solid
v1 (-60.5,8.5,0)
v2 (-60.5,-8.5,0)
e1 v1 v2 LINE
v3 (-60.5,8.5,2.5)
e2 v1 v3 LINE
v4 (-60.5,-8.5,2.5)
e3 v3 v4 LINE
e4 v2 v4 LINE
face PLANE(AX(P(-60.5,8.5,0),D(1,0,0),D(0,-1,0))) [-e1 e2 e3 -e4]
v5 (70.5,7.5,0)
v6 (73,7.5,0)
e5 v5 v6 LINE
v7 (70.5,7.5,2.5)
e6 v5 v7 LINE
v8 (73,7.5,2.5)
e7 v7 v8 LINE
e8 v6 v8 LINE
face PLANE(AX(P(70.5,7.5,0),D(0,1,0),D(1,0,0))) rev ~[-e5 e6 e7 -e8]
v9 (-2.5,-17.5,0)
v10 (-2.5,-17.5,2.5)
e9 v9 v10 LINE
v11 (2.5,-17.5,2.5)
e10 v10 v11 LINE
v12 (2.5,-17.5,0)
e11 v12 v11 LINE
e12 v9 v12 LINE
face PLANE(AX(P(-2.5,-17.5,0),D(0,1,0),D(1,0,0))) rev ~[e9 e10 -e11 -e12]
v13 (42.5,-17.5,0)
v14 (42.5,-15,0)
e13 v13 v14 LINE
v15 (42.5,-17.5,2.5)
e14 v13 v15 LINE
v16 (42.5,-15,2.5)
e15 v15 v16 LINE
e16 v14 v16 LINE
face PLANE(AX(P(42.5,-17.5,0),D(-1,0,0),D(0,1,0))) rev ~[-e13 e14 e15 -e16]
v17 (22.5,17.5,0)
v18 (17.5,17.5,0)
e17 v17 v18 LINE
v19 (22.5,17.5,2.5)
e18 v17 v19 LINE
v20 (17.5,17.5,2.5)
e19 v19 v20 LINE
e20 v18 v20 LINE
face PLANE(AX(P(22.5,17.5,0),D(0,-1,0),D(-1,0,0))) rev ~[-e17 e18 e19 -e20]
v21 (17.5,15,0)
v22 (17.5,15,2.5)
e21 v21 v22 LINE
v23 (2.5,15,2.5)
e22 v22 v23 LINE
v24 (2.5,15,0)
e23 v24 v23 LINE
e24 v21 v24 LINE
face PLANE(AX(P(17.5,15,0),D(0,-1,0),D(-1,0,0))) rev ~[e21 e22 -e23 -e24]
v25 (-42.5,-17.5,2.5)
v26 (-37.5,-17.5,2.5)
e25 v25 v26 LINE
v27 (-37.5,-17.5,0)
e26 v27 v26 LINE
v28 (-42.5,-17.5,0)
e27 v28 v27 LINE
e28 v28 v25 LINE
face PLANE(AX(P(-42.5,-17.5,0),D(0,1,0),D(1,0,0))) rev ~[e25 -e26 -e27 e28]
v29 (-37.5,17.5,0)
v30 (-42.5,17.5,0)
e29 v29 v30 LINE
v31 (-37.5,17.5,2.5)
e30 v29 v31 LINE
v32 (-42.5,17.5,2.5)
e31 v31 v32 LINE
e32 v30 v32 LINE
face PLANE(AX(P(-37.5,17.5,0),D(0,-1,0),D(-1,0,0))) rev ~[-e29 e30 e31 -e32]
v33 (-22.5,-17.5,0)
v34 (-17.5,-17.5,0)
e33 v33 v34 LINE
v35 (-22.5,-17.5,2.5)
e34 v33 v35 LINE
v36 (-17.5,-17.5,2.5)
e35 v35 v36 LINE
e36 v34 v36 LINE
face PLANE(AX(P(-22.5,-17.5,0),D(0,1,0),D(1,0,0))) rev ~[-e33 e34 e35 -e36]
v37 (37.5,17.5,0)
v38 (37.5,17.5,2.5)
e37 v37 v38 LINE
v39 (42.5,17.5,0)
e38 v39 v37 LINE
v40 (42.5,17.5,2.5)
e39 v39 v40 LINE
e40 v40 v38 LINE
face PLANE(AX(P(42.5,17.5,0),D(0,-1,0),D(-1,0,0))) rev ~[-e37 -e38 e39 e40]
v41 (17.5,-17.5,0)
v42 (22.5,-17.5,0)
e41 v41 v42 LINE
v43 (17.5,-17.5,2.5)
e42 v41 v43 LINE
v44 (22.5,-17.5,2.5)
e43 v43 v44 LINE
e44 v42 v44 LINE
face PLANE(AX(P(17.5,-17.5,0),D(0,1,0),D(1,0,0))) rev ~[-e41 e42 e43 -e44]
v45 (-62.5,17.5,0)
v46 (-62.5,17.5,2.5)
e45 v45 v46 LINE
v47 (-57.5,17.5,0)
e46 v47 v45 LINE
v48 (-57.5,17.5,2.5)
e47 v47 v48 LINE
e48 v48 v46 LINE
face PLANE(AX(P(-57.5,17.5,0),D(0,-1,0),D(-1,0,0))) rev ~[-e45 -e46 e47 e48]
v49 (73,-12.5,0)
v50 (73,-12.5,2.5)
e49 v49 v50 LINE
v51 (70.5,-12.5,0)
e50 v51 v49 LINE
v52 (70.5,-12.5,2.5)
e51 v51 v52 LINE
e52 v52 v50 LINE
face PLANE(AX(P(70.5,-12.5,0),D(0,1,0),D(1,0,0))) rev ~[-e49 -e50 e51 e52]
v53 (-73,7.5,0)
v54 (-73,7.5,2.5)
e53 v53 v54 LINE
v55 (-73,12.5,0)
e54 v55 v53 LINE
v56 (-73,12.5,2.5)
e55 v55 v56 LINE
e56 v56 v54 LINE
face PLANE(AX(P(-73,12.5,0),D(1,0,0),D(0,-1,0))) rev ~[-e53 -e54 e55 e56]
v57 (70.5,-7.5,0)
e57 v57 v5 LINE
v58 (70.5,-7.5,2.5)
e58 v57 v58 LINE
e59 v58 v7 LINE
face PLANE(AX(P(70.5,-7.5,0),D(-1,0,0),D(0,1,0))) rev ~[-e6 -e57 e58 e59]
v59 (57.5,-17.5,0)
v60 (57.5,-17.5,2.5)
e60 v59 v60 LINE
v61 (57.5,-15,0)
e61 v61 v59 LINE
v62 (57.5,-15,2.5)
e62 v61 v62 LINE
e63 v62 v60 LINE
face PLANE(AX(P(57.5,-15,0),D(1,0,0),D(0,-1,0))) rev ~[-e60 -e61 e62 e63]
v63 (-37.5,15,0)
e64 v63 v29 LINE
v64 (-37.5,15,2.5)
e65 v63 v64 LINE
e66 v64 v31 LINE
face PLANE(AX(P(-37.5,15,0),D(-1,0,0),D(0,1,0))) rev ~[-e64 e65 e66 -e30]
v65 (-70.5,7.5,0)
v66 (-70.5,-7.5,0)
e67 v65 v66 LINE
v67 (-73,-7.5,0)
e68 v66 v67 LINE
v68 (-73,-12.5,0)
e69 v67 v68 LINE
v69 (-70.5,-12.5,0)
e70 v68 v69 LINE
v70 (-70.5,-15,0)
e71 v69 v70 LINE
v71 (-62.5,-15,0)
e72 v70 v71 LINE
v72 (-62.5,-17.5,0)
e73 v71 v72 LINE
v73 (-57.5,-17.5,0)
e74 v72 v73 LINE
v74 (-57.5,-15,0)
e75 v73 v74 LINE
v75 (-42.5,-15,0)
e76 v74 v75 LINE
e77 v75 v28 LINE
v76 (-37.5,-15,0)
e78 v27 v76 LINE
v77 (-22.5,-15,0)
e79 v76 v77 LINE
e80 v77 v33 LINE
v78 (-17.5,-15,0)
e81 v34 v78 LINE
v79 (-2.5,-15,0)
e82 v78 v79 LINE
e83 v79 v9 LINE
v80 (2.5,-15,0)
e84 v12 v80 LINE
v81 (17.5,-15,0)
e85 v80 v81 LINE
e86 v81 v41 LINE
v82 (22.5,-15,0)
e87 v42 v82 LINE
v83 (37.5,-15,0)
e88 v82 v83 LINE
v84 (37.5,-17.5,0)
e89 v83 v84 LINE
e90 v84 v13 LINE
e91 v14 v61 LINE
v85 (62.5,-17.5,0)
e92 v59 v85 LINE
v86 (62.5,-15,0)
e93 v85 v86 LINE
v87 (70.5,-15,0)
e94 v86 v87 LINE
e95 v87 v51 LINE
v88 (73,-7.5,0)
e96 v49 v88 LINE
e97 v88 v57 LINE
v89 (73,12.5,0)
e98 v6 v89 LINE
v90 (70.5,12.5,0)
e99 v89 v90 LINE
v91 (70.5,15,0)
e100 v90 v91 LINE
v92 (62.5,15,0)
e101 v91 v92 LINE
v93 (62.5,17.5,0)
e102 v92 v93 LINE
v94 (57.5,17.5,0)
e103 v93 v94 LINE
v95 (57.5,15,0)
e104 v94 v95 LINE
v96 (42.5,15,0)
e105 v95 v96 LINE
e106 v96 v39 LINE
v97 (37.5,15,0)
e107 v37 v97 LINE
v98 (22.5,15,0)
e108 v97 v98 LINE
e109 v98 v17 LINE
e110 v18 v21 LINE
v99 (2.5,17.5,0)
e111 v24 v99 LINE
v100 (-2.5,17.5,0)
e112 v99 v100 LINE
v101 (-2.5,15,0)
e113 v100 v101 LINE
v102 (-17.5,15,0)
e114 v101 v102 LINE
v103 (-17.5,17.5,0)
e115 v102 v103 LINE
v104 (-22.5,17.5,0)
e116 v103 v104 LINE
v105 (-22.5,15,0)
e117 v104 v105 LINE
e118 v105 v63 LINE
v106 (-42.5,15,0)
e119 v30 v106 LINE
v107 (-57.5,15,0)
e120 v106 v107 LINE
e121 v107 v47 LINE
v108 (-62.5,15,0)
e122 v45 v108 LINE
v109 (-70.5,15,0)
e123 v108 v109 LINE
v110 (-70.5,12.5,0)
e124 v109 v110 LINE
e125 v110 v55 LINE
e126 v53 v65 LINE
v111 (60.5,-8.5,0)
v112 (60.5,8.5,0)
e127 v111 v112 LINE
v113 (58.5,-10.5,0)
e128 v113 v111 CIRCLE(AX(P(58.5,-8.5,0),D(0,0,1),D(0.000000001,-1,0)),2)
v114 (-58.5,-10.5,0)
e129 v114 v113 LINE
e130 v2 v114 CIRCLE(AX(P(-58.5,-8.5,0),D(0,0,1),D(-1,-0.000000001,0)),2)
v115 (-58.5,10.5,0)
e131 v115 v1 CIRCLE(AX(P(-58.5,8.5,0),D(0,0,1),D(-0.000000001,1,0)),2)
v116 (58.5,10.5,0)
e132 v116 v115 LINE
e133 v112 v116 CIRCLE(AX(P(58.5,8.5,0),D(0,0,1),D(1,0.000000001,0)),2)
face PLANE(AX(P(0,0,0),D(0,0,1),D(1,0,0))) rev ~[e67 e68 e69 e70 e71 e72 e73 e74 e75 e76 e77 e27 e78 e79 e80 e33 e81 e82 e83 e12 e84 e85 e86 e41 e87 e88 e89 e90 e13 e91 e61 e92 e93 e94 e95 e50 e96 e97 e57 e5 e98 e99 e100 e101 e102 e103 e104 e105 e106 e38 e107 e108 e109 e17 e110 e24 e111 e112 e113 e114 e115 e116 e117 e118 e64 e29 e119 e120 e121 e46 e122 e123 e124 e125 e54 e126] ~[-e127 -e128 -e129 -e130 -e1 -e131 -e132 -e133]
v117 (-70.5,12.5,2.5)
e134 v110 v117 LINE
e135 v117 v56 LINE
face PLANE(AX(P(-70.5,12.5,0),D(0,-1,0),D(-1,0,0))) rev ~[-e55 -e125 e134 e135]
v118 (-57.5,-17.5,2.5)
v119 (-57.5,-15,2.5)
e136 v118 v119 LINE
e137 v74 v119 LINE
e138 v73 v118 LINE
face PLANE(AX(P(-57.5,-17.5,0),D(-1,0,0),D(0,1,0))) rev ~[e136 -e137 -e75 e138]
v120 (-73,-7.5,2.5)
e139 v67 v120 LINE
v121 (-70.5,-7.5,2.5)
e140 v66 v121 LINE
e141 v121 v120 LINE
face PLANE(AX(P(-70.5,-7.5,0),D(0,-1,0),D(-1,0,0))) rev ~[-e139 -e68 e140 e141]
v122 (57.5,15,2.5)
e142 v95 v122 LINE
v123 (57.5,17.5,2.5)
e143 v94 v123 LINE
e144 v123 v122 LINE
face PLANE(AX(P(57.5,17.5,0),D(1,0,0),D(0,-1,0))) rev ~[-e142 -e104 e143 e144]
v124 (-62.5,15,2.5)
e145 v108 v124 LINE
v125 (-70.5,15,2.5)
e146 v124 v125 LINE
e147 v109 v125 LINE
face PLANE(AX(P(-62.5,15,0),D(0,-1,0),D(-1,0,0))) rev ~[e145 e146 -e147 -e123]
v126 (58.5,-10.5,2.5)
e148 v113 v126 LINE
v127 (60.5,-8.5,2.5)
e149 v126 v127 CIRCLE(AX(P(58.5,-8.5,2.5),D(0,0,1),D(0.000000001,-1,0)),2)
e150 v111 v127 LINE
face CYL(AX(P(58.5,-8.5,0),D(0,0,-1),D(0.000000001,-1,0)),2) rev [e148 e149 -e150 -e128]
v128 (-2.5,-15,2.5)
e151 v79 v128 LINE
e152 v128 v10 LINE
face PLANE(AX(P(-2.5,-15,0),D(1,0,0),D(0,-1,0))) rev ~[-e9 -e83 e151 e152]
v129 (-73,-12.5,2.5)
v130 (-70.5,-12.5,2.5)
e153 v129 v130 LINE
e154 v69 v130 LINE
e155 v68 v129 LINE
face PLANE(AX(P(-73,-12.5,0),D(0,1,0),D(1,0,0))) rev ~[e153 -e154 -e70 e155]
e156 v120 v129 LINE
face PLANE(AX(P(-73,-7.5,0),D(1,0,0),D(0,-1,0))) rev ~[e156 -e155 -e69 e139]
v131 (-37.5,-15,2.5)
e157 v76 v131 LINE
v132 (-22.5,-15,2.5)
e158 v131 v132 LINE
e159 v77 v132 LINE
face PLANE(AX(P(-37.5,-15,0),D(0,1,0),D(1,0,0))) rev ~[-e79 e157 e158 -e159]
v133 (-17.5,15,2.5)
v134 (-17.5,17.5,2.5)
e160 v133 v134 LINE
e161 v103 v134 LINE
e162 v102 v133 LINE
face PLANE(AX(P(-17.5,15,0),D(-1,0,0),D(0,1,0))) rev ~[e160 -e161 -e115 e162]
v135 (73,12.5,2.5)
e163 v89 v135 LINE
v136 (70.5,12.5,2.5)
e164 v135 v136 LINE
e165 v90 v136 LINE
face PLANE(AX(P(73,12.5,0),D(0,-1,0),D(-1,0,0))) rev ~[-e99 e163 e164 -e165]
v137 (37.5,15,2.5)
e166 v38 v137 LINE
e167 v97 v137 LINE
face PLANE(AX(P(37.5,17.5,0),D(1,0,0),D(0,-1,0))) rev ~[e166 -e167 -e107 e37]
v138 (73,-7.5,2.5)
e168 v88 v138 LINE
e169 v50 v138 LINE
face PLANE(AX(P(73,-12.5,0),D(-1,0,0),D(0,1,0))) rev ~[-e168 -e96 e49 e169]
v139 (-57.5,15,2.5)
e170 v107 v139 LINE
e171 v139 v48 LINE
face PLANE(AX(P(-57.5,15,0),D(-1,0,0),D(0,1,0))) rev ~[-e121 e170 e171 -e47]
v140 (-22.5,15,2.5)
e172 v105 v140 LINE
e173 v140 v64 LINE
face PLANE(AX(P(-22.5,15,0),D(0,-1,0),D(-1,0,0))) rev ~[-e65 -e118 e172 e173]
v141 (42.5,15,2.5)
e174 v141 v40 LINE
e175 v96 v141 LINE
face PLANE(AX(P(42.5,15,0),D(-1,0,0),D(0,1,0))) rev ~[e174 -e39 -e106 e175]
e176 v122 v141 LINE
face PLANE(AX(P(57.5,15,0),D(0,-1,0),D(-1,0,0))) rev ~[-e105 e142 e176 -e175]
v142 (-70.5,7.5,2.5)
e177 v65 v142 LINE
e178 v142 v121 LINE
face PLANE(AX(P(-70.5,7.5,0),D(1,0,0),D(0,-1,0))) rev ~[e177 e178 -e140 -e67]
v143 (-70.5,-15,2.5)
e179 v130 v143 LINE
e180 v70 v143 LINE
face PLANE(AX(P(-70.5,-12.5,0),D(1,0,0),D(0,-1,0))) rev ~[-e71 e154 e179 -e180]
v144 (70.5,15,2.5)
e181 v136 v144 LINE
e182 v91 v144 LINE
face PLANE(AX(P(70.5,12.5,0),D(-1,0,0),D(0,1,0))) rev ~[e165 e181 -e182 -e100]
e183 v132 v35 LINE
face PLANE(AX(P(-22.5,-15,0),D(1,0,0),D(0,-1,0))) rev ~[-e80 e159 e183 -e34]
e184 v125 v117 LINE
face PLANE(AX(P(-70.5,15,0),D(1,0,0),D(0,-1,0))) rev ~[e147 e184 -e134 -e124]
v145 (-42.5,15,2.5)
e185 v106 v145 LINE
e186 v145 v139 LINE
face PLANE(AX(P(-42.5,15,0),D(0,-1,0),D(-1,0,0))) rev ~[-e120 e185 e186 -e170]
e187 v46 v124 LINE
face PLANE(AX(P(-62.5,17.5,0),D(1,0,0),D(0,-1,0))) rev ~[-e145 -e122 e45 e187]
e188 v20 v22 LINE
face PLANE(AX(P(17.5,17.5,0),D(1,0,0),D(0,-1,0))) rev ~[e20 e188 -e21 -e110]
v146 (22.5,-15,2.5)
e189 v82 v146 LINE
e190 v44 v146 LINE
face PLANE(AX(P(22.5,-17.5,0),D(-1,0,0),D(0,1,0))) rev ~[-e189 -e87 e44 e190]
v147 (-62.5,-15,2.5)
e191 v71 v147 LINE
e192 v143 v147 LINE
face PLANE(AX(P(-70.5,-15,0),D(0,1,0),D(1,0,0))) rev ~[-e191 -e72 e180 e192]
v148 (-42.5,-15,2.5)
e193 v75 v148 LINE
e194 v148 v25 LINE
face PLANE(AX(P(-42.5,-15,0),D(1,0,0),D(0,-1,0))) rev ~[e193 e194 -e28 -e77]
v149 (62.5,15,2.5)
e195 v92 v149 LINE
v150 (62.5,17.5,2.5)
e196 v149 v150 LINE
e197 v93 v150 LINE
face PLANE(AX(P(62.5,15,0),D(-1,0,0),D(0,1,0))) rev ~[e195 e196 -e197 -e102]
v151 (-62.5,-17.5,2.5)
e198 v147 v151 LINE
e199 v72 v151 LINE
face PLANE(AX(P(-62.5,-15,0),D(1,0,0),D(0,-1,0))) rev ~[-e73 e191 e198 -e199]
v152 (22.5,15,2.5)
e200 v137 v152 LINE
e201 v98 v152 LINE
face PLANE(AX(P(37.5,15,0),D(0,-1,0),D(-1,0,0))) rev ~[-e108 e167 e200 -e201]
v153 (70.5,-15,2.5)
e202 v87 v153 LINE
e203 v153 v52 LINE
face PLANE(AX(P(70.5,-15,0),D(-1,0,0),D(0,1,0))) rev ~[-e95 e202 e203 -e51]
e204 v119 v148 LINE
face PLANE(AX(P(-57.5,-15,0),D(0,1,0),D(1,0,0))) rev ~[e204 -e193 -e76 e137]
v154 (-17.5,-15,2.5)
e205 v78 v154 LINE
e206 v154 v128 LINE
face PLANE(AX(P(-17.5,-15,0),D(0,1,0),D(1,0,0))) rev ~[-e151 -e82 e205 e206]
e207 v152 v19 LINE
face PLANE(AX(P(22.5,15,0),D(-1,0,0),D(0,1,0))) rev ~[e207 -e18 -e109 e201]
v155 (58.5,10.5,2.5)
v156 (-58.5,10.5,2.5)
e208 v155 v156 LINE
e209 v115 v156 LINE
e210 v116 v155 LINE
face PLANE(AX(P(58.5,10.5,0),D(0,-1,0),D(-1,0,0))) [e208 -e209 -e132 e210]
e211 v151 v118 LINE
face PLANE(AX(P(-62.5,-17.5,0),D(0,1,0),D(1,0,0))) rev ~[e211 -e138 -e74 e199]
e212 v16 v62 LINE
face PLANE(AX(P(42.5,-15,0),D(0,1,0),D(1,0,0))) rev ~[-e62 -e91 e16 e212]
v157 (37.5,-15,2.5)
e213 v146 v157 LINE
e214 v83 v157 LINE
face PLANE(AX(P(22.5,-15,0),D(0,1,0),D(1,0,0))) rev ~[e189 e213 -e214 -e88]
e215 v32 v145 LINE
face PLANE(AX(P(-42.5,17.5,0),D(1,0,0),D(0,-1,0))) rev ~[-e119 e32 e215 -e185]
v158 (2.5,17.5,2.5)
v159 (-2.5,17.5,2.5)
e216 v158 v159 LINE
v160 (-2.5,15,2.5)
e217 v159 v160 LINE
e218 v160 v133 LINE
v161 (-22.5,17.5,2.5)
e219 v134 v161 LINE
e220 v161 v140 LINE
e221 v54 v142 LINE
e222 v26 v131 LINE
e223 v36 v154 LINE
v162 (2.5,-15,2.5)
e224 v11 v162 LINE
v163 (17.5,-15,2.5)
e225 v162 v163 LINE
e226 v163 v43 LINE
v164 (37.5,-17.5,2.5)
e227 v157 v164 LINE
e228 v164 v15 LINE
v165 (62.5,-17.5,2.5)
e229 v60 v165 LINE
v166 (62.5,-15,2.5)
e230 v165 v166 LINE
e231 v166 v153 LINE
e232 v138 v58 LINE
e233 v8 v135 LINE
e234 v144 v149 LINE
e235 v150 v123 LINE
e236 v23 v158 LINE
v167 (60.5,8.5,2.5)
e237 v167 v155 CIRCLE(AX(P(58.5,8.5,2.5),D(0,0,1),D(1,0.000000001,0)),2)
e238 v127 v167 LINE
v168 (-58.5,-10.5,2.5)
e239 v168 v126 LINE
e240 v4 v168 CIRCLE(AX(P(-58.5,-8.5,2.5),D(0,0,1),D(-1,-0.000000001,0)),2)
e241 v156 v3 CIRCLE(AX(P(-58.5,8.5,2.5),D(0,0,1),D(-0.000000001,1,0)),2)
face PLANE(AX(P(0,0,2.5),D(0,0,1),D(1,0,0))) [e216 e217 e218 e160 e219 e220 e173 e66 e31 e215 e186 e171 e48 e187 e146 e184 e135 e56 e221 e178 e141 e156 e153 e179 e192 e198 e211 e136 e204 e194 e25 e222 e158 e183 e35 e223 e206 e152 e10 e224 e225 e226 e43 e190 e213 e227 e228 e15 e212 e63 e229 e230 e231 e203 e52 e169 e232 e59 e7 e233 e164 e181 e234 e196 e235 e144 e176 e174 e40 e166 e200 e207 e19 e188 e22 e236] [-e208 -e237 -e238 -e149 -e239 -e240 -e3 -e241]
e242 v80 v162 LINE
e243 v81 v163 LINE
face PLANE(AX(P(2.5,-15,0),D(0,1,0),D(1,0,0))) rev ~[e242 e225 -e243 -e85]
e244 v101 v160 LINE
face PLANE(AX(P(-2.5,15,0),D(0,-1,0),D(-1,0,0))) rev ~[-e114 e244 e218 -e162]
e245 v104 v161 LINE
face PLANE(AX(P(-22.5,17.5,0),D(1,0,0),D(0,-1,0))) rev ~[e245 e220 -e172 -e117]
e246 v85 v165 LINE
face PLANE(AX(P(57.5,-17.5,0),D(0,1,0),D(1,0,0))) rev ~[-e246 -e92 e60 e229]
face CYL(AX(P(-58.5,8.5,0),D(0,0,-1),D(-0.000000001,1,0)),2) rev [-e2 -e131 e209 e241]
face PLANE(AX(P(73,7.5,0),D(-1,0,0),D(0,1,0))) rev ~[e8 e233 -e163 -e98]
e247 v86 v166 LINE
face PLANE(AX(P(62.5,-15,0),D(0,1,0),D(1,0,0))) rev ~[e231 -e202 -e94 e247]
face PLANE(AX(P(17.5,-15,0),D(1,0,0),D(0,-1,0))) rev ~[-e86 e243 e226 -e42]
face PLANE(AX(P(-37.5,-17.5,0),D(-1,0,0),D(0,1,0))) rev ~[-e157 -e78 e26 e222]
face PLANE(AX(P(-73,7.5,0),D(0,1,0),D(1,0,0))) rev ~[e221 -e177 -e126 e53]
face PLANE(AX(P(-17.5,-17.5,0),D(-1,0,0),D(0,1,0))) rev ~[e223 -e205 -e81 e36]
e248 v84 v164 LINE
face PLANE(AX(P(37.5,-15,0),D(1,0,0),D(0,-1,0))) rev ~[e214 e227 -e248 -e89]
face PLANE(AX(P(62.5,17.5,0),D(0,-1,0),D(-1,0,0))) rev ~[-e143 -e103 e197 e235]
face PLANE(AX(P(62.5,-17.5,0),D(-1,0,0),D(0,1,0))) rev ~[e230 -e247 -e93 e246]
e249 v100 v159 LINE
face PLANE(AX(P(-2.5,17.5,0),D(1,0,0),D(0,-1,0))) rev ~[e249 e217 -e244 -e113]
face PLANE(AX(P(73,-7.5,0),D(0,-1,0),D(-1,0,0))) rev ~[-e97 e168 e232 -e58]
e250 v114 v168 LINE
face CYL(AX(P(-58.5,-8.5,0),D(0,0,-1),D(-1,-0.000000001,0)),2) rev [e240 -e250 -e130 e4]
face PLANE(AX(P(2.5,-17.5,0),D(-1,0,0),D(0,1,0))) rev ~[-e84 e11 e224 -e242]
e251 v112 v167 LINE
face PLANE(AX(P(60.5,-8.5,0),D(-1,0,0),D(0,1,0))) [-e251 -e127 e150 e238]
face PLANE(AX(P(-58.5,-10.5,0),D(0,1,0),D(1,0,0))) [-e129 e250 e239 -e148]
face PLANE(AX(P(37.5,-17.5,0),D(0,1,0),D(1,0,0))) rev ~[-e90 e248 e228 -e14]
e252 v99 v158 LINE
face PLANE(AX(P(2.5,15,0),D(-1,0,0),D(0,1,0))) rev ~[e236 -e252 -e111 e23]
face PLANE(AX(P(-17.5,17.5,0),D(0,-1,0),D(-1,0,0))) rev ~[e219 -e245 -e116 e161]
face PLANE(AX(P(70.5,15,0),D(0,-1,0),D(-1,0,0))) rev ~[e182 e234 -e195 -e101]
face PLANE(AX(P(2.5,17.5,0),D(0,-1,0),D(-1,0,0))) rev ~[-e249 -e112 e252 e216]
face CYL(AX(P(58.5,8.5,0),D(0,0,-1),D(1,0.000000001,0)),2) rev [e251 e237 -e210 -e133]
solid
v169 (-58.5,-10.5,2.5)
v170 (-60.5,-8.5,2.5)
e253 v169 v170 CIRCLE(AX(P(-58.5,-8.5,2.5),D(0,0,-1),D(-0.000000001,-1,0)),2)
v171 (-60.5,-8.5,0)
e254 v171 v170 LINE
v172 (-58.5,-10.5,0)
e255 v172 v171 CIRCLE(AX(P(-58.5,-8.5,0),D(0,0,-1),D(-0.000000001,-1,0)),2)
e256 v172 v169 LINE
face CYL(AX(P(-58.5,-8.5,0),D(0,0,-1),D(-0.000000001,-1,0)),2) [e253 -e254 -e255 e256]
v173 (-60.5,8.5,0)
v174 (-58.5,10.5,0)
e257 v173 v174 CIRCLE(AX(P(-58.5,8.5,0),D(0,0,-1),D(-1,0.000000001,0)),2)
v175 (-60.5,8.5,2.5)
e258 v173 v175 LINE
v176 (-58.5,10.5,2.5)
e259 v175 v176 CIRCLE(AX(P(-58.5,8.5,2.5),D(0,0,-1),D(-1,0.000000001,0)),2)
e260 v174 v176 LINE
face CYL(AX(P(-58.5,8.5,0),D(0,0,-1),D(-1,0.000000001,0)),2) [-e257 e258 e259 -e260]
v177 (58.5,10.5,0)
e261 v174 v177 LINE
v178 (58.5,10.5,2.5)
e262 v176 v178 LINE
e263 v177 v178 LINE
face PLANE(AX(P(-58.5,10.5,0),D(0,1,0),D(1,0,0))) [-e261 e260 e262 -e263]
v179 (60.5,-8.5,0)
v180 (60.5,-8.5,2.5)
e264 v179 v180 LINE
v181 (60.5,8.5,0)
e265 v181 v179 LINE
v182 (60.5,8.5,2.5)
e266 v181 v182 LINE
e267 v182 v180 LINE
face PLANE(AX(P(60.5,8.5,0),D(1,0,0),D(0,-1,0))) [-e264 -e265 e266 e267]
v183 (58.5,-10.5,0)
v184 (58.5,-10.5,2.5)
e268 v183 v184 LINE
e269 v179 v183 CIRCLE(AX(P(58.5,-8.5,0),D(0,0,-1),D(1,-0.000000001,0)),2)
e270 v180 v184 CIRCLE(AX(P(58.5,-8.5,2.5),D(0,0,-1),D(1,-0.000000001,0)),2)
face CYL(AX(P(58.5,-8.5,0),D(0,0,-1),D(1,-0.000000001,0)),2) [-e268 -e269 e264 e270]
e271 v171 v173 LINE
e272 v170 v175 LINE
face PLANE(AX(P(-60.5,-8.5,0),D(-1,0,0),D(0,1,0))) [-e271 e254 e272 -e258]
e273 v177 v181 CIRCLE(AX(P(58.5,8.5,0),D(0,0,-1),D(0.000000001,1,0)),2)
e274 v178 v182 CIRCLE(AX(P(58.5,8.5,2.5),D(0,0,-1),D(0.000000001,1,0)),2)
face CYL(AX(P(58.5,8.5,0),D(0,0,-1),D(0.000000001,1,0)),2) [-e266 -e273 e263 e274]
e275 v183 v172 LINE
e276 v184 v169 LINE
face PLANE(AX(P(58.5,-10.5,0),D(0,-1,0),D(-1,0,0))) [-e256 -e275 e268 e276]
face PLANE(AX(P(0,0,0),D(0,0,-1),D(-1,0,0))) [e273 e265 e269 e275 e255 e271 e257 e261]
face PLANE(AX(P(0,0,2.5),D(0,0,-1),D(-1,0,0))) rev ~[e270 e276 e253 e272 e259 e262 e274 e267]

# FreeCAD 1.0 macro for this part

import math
import FreeCAD as App
import Part
import Sketcher
from FreeCAD import Vector

doc = App.newDocument("Part")
params = doc.addObject("Spreadsheet::Sheet", "Params")
for row, (alias, value) in enumerate([
    ("sketch1_radius", "2 mm"),
    ("sketch1_width", "8 mm"),
    ("sketch1_width2", "5 mm"),
    ("sketch1_width3", "15 mm"),
    ("sketch1_width4", "117 mm"),
    ("pad1_length", "2.5 mm"),
    ("sketch2_radius", "2 mm"),
    ("sketch2_width", "117 mm"),
    ("sketch2_height", "17 mm"),
    ("pad2_length", "2.5 mm"),
], start=1):
    params.set(f"A{row}", alias)
    params.set(f"B{row}", "=" + value)
    params.setAlias(f"B{row}", alias)

body = doc.addObject("PartDesign::Body", "Body")

sketch1 = body.newObject("Sketcher::SketchObject", "Sketch")
sketch1.AttachmentSupport = (doc.getObject("XY_Plane"), [""])
sketch1.MapMode = "FlatFace"
sketch1.addGeometry(Part.LineSegment(Vector(-70.5, -12.5, 0), Vector(-70.5, -15, 0)), False)
sketch1.addGeometry(Part.LineSegment(Vector(-70.5, -15, 0), Vector(-62.5, -15, 0)), False)
sketch1.addGeometry(Part.LineSegment(Vector(-62.5, -15, 0), Vector(-62.5, -17.5, 0)), False)
sketch1.addGeometry(Part.LineSegment(Vector(-62.5, -17.5, 0), Vector(-57.5, -17.5, 0)), False)
sketch1.addGeometry(Part.LineSegment(Vector(-57.5, -17.5, 0), Vector(-57.5, -15, 0)), False)
sketch1.addGeometry(Part.LineSegment(Vector(-57.5, -15, 0), Vector(-42.5, -15, 0)), False)
sketch1.addGeometry(Part.LineSegment(Vector(-42.5, -15, 0), Vector(-42.5, -17.5, 0)), False)
sketch1.addGeometry(Part.LineSegment(Vector(-42.5, -17.5, 0), Vector(-37.5, -17.5, 0)), False)
sketch1.addGeometry(Part.LineSegment(Vector(-37.5, -17.5, 0), Vector(-37.5, -15, 0)), False)
sketch1.addGeometry(Part.LineSegment(Vector(-37.5, -15, 0), Vector(-22.5, -15, 0)), False)
sketch1.addGeometry(Part.LineSegment(Vector(-22.5, -15, 0), Vector(-22.5, -17.5, 0)), False)
sketch1.addGeometry(Part.LineSegment(Vector(-22.5, -17.5, 0), Vector(-17.5, -17.5, 0)), False)
sketch1.addGeometry(Part.LineSegment(Vector(-17.5, -17.5, 0), Vector(-17.5, -15, 0)), False)
sketch1.addGeometry(Part.LineSegment(Vector(-17.5, -15, 0), Vector(-2.5, -15, 0)), False)
sketch1.addGeometry(Part.LineSegment(Vector(-2.5, -15, 0), Vector(-2.5, -17.5, 0)), False)
sketch1.addGeometry(Part.LineSegment(Vector(-2.5, -17.5, 0), Vector(2.5, -17.5, 0)), False)
sketch1.addGeometry(Part.LineSegment(Vector(2.5, -17.5, 0), Vector(2.5, -15, 0)), False)
sketch1.addGeometry(Part.LineSegment(Vector(2.5, -15, 0), Vector(17.5, -15, 0)), False)
sketch1.addGeometry(Part.LineSegment(Vector(17.5, -15, 0), Vector(17.5, -17.5, 0)), False)
sketch1.addGeometry(Part.LineSegment(Vector(17.5, -17.5, 0), Vector(22.5, -17.5, 0)), False)
sketch1.addGeometry(Part.LineSegment(Vector(22.5, -17.5, 0), Vector(22.5, -15, 0)), False)
sketch1.addGeometry(Part.LineSegment(Vector(22.5, -15, 0), Vector(37.5, -15, 0)), False)
sketch1.addGeometry(Part.LineSegment(Vector(37.5, -15, 0), Vector(37.5, -17.5, 0)), False)
sketch1.addGeometry(Part.LineSegment(Vector(37.5, -17.5, 0), Vector(42.5, -17.5, 0)), False)
sketch1.addGeometry(Part.LineSegment(Vector(42.5, -17.5, 0), Vector(42.5, -15, 0)), False)
sketch1.addGeometry(Part.LineSegment(Vector(42.5, -15, 0), Vector(57.5, -15, 0)), False)
sketch1.addGeometry(Part.LineSegment(Vector(57.5, -15, 0), Vector(57.5, -17.5, 0)), False)
sketch1.addGeometry(Part.LineSegment(Vector(57.5, -17.5, 0), Vector(62.5, -17.5, 0)), False)
sketch1.addGeometry(Part.LineSegment(Vector(62.5, -17.5, 0), Vector(62.5, -15, 0)), False)
sketch1.addGeometry(Part.LineSegment(Vector(62.5, -15, 0), Vector(70.5, -15, 0)), False)
sketch1.addGeometry(Part.LineSegment(Vector(70.5, -15, 0), Vector(70.5, -12.5, 0)), False)
sketch1.addGeometry(Part.LineSegment(Vector(70.5, -12.5, 0), Vector(73, -12.5, 0)), False)
sketch1.addGeometry(Part.LineSegment(Vector(73, -12.5, 0), Vector(73, -7.5, 0)), False)
sketch1.addGeometry(Part.LineSegment(Vector(73, -7.5, 0), Vector(70.5, -7.5, 0)), False)
sketch1.addGeometry(Part.LineSegment(Vector(70.5, -7.5, 0), Vector(70.5, 7.5, 0)), False)
sketch1.addGeometry(Part.LineSegment(Vector(70.5, 7.5, 0), Vector(73, 7.5, 0)), False)
sketch1.addGeometry(Part.LineSegment(Vector(73, 7.5, 0), Vector(73, 12.5, 0)), False)
sketch1.addGeometry(Part.LineSegment(Vector(73, 12.5, 0), Vector(70.5, 12.5, 0)), False)
sketch1.addGeometry(Part.LineSegment(Vector(70.5, 12.5, 0), Vector(70.5, 15, 0)), False)
sketch1.addGeometry(Part.LineSegment(Vector(70.5, 15, 0), Vector(62.5, 15, 0)), False)
sketch1.addGeometry(Part.LineSegment(Vector(62.5, 15, 0), Vector(62.5, 17.5, 0)), False)
sketch1.addGeometry(Part.LineSegment(Vector(62.5, 17.5, 0), Vector(57.5, 17.5, 0)), False)
sketch1.addGeometry(Part.LineSegment(Vector(57.5, 17.5, 0), Vector(57.5, 15, 0)), False)
sketch1.addGeometry(Part.LineSegment(Vector(57.5, 15, 0), Vector(42.5, 15, 0)), False)
sketch1.addGeometry(Part.LineSegment(Vector(42.5, 15, 0), Vector(42.5, 17.5, 0)), False)
sketch1.addGeometry(Part.LineSegment(Vector(42.5, 17.5, 0), Vector(37.5, 17.5, 0)), False)
sketch1.addGeometry(Part.LineSegment(Vector(37.5, 17.5, 0), Vector(37.5, 15, 0)), False)
sketch1.addGeometry(Part.LineSegment(Vector(37.5, 15, 0), Vector(22.5, 15, 0)), False)
sketch1.addGeometry(Part.LineSegment(Vector(22.5, 15, 0), Vector(22.5, 17.5, 0)), False)
sketch1.addGeometry(Part.LineSegment(Vector(22.5, 17.5, 0), Vector(17.5, 17.5, 0)), False)
sketch1.addGeometry(Part.LineSegment(Vector(17.5, 17.5, 0), Vector(17.5, 15, 0)), False)
sketch1.addGeometry(Part.LineSegment(Vector(17.5, 15, 0), Vector(2.5, 15, 0)), False)
sketch1.addGeometry(Part.LineSegment(Vector(2.5, 15, 0), Vector(2.5, 17.5, 0)), False)
sketch1.addGeometry(Part.LineSegment(Vector(2.5, 17.5, 0), Vector(-2.5, 17.5, 0)), False)
sketch1.addGeometry(Part.LineSegment(Vector(-2.5, 17.5, 0), Vector(-2.5, 15, 0)), False)
sketch1.addGeometry(Part.LineSegment(Vector(-2.5, 15, 0), Vector(-17.5, 15, 0)), False)
sketch1.addGeometry(Part.LineSegment(Vector(-17.5, 15, 0), Vector(-17.5, 17.5, 0)), False)
sketch1.addGeometry(Part.LineSegment(Vector(-17.5, 17.5, 0), Vector(-22.5, 17.5, 0)), False)
sketch1.addGeometry(Part.LineSegment(Vector(-22.5, 17.5, 0), Vector(-22.5, 15, 0)), False)
sketch1.addGeometry(Part.LineSegment(Vector(-22.5, 15, 0), Vector(-37.5, 15, 0)), False)
sketch1.addGeometry(Part.LineSegment(Vector(-37.5, 15, 0), Vector(-37.5, 17.5, 0)), False)
sketch1.addGeometry(Part.LineSegment(Vector(-37.5, 17.5, 0), Vector(-42.5, 17.5, 0)), False)
sketch1.addGeometry(Part.LineSegment(Vector(-42.5, 17.5, 0), Vector(-42.5, 15, 0)), False)
sketch1.addGeometry(Part.LineSegment(Vector(-42.5, 15, 0), Vector(-57.5, 15, 0)), False)
sketch1.addGeometry(Part.LineSegment(Vector(-57.5, 15, 0), Vector(-57.5, 17.5, 0)), False)
sketch1.addGeometry(Part.LineSegment(Vector(-57.5, 17.5, 0), Vector(-62.5, 17.5, 0)), False)
sketch1.addGeometry(Part.LineSegment(Vector(-62.5, 17.5, 0), Vector(-62.5, 15, 0)), False)
sketch1.addGeometry(Part.LineSegment(Vector(-62.5, 15, 0), Vector(-70.5, 15, 0)), False)
sketch1.addGeometry(Part.LineSegment(Vector(-70.5, 15, 0), Vector(-70.5, 12.5, 0)), False)
sketch1.addGeometry(Part.LineSegment(Vector(-70.5, 12.5, 0), Vector(-73, 12.5, 0)), False)
sketch1.addGeometry(Part.LineSegment(Vector(-73, 12.5, 0), Vector(-73, 7.5, 0)), False)
sketch1.addGeometry(Part.LineSegment(Vector(-73, 7.5, 0), Vector(-70.5, 7.5, 0)), False)
sketch1.addGeometry(Part.LineSegment(Vector(-70.5, 7.5, 0), Vector(-70.5, -7.5, 0)), False)
sketch1.addGeometry(Part.LineSegment(Vector(-70.5, -7.5, 0), Vector(-73, -7.5, 0)), False)
sketch1.addGeometry(Part.LineSegment(Vector(-73, -7.5, 0), Vector(-73, -12.5, 0)), False)
sketch1.addGeometry(Part.LineSegment(Vector(-73, -12.5, 0), Vector(-70.5, -12.5, 0)), False)
sketch1.addGeometry(Part.LineSegment(Vector(58.5, -10.5, 0), Vector(-58.5, -10.5, 0)), False)
sketch1.addGeometry(Part.ArcOfCircle(Part.Circle(Vector(-58.5, -8.5, 0), Vector(0, 0, 1), 2), math.radians(-180), math.radians(-90)), False)
sketch1.addGeometry(Part.LineSegment(Vector(-60.5, -8.5, 0), Vector(-60.5, 8.5, 0)), False)
sketch1.addGeometry(Part.ArcOfCircle(Part.Circle(Vector(-58.5, 8.5, 0), Vector(0, 0, 1), 2), math.radians(90), math.radians(180)), False)
sketch1.addGeometry(Part.LineSegment(Vector(-58.5, 10.5, 0), Vector(58.5, 10.5, 0)), False)
sketch1.addGeometry(Part.ArcOfCircle(Part.Circle(Vector(58.5, 8.5, 0), Vector(0, 0, 1), 2), math.radians(0), math.radians(90)), False)
sketch1.addGeometry(Part.LineSegment(Vector(60.5, 8.5, 0), Vector(60.5, -8.5, 0)), False)
sketch1.addGeometry(Part.ArcOfCircle(Part.Circle(Vector(58.5, -8.5, 0), Vector(0, 0, 1), 2), math.radians(-90), math.radians(0)), False)
sketch1.addConstraint(Sketcher.Constraint("Coincident", 0, 2, 1, 1))
sketch1.addConstraint(Sketcher.Constraint("Coincident", 1, 2, 2, 1))
sketch1.addConstraint(Sketcher.Constraint("Coincident", 2, 2, 3, 1))
sketch1.addConstraint(Sketcher.Constraint("Coincident", 3, 2, 4, 1))
sketch1.addConstraint(Sketcher.Constraint("Coincident", 4, 2, 5, 1))
sketch1.addConstraint(Sketcher.Constraint("Coincident", 5, 2, 6, 1))
sketch1.addConstraint(Sketcher.Constraint("Coincident", 6, 2, 7, 1))
sketch1.addConstraint(Sketcher.Constraint("Coincident", 7, 2, 8, 1))
sketch1.addConstraint(Sketcher.Constraint("Coincident", 8, 2, 9, 1))
sketch1.addConstraint(Sketcher.Constraint("Coincident", 9, 2, 10, 1))
sketch1.addConstraint(Sketcher.Constraint("Coincident", 10, 2, 11, 1))
sketch1.addConstraint(Sketcher.Constraint("Coincident", 11, 2, 12, 1))
sketch1.addConstraint(Sketcher.Constraint("Coincident", 12, 2, 13, 1))
sketch1.addConstraint(Sketcher.Constraint("Coincident", 13, 2, 14, 1))
sketch1.addConstraint(Sketcher.Constraint("Coincident", 14, 2, 15, 1))
sketch1.addConstraint(Sketcher.Constraint("Coincident", 15, 2, 16, 1))
sketch1.addConstraint(Sketcher.Constraint("Coincident", 16, 2, 17, 1))
sketch1.addConstraint(Sketcher.Constraint("Coincident", 17, 2, 18, 1))
sketch1.addConstraint(Sketcher.Constraint("Coincident", 18, 2, 19, 1))
sketch1.addConstraint(Sketcher.Constraint("Coincident", 19, 2, 20, 1))
sketch1.addConstraint(Sketcher.Constraint("Coincident", 20, 2, 21, 1))
sketch1.addConstraint(Sketcher.Constraint("Coincident", 21, 2, 22, 1))
sketch1.addConstraint(Sketcher.Constraint("Coincident", 22, 2, 23, 1))
sketch1.addConstraint(Sketcher.Constraint("Coincident", 23, 2, 24, 1))
sketch1.addConstraint(Sketcher.Constraint("Coincident", 24, 2, 25, 1))
sketch1.addConstraint(Sketcher.Constraint("Coincident", 25, 2, 26, 1))
sketch1.addConstraint(Sketcher.Constraint("Coincident", 26, 2, 27, 1))
sketch1.addConstraint(Sketcher.Constraint("Coincident", 27, 2, 28, 1))
sketch1.addConstraint(Sketcher.Constraint("Coincident", 28, 2, 29, 1))
sketch1.addConstraint(Sketcher.Constraint("Coincident", 29, 2, 30, 1))
sketch1.addConstraint(Sketcher.Constraint("Coincident", 30, 2, 31, 1))
sketch1.addConstraint(Sketcher.Constraint("Coincident", 31, 2, 32, 1))
sketch1.addConstraint(Sketcher.Constraint("Coincident", 32, 2, 33, 1))
sketch1.addConstraint(Sketcher.Constraint("Coincident", 33, 2, 34, 1))
sketch1.addConstraint(Sketcher.Constraint("Coincident", 34, 2, 35, 1))
sketch1.addConstraint(Sketcher.Constraint("Coincident", 35, 2, 36, 1))
sketch1.addConstraint(Sketcher.Constraint("Coincident", 36, 2, 37, 1))
sketch1.addConstraint(Sketcher.Constraint("Coincident", 37, 2, 38, 1))
sketch1.addConstraint(Sketcher.Constraint("Coincident", 38, 2, 39, 1))
sketch1.addConstraint(Sketcher.Constraint("Coincident", 39, 2, 40, 1))
sketch1.addConstraint(Sketcher.Constraint("Coincident", 40, 2, 41, 1))
sketch1.addConstraint(Sketcher.Constraint("Coincident", 41, 2, 42, 1))
sketch1.addConstraint(Sketcher.Constraint("Coincident", 42, 2, 43, 1))
sketch1.addConstraint(Sketcher.Constraint("Coincident", 43, 2, 44, 1))
sketch1.addConstraint(Sketcher.Constraint("Coincident", 44, 2, 45, 1))
sketch1.addConstraint(Sketcher.Constraint("Coincident", 45, 2, 46, 1))
sketch1.addConstraint(Sketcher.Constraint("Coincident", 46, 2, 47, 1))
sketch1.addConstraint(Sketcher.Constraint("Coincident", 47, 2, 48, 1))
sketch1.addConstraint(Sketcher.Constraint("Coincident", 48, 2, 49, 1))
sketch1.addConstraint(Sketcher.Constraint("Coincident", 49, 2, 50, 1))
sketch1.addConstraint(Sketcher.Constraint("Coincident", 50, 2, 51, 1))
sketch1.addConstraint(Sketcher.Constraint("Coincident", 51, 2, 52, 1))
sketch1.addConstraint(Sketcher.Constraint("Coincident", 52, 2, 53, 1))
sketch1.addConstraint(Sketcher.Constraint("Coincident", 53, 2, 54, 1))
sketch1.addConstraint(Sketcher.Constraint("Coincident", 54, 2, 55, 1))
sketch1.addConstraint(Sketcher.Constraint("Coincident", 55, 2, 56, 1))
sketch1.addConstraint(Sketcher.Constraint("Coincident", 56, 2, 57, 1))
sketch1.addConstraint(Sketcher.Constraint("Coincident", 57, 2, 58, 1))
sketch1.addConstraint(Sketcher.Constraint("Coincident", 58, 2, 59, 1))
sketch1.addConstraint(Sketcher.Constraint("Coincident", 59, 2, 60, 1))
sketch1.addConstraint(Sketcher.Constraint("Coincident", 60, 2, 61, 1))
sketch1.addConstraint(Sketcher.Constraint("Coincident", 61, 2, 62, 1))
sketch1.addConstraint(Sketcher.Constraint("Coincident", 62, 2, 63, 1))
sketch1.addConstraint(Sketcher.Constraint("Coincident", 63, 2, 64, 1))
sketch1.addConstraint(Sketcher.Constraint("Coincident", 64, 2, 65, 1))
sketch1.addConstraint(Sketcher.Constraint("Coincident", 65, 2, 66, 1))
sketch1.addConstraint(Sketcher.Constraint("Coincident", 66, 2, 67, 1))
sketch1.addConstraint(Sketcher.Constraint("Coincident", 67, 2, 68, 1))
sketch1.addConstraint(Sketcher.Constraint("Coincident", 68, 2, 69, 1))
sketch1.addConstraint(Sketcher.Constraint("Coincident", 69, 2, 70, 1))
sketch1.addConstraint(Sketcher.Constraint("Coincident", 70, 2, 71, 1))
sketch1.addConstraint(Sketcher.Constraint("Coincident", 71, 2, 72, 1))
sketch1.addConstraint(Sketcher.Constraint("Coincident", 72, 2, 73, 1))
sketch1.addConstraint(Sketcher.Constraint("Coincident", 73, 2, 74, 1))
sketch1.addConstraint(Sketcher.Constraint("Coincident", 74, 2, 75, 1))
sketch1.addConstraint(Sketcher.Constraint("Coincident", 75, 2, 0, 1))
sketch1.addConstraint(Sketcher.Constraint("Tangent", 76, 2, 77, 2))
sketch1.addConstraint(Sketcher.Constraint("Tangent", 77, 1, 78, 1))
sketch1.addConstraint(Sketcher.Constraint("Tangent", 78, 2, 79, 2))
sketch1.addConstraint(Sketcher.Constraint("Tangent", 79, 1, 80, 1))
sketch1.addConstraint(Sketcher.Constraint("Tangent", 80, 2, 81, 2))
sketch1.addConstraint(Sketcher.Constraint("Tangent", 81, 1, 82, 1))
sketch1.addConstraint(Sketcher.Constraint("Tangent", 82, 2, 83, 2))
sketch1.addConstraint(Sketcher.Constraint("Tangent", 83, 1, 76, 1))
sketch1.addConstraint(Sketcher.Constraint("Vertical", 0))
sketch1.addConstraint(Sketcher.Constraint("Horizontal", 1))
sketch1.addConstraint(Sketcher.Constraint("Vertical", 2))
sketch1.addConstraint(Sketcher.Constraint("Horizontal", 3))
sketch1.addConstraint(Sketcher.Constraint("Vertical", 4))
sketch1.addConstraint(Sketcher.Constraint("Horizontal", 5))
sketch1.addConstraint(Sketcher.Constraint("Vertical", 6))
sketch1.addConstraint(Sketcher.Constraint("Horizontal", 7))
sketch1.addConstraint(Sketcher.Constraint("Vertical", 8))
sketch1.addConstraint(Sketcher.Constraint("Horizontal", 9))
sketch1.addConstraint(Sketcher.Constraint("Vertical", 10))
sketch1.addConstraint(Sketcher.Constraint("Horizontal", 11))
sketch1.addConstraint(Sketcher.Constraint("Vertical", 12))
sketch1.addConstraint(Sketcher.Constraint("Horizontal", 13))
sketch1.addConstraint(Sketcher.Constraint("Vertical", 14))
sketch1.addConstraint(Sketcher.Constraint("Horizontal", 15))
sketch1.addConstraint(Sketcher.Constraint("Vertical", 16))
sketch1.addConstraint(Sketcher.Constraint("Horizontal", 17))
sketch1.addConstraint(Sketcher.Constraint("Vertical", 18))
sketch1.addConstraint(Sketcher.Constraint("Horizontal", 19))
sketch1.addConstraint(Sketcher.Constraint("Vertical", 20))
sketch1.addConstraint(Sketcher.Constraint("Horizontal", 21))
sketch1.addConstraint(Sketcher.Constraint("Vertical", 22))
sketch1.addConstraint(Sketcher.Constraint("Horizontal", 23))
sketch1.addConstraint(Sketcher.Constraint("Vertical", 24))
sketch1.addConstraint(Sketcher.Constraint("Horizontal", 25))
sketch1.addConstraint(Sketcher.Constraint("Vertical", 26))
sketch1.addConstraint(Sketcher.Constraint("Horizontal", 27))
sketch1.addConstraint(Sketcher.Constraint("Vertical", 28))
sketch1.addConstraint(Sketcher.Constraint("Horizontal", 29))
sketch1.addConstraint(Sketcher.Constraint("Vertical", 30))
sketch1.addConstraint(Sketcher.Constraint("Horizontal", 31))
sketch1.addConstraint(Sketcher.Constraint("Vertical", 32))
sketch1.addConstraint(Sketcher.Constraint("Horizontal", 33))
sketch1.addConstraint(Sketcher.Constraint("Vertical", 34))
sketch1.addConstraint(Sketcher.Constraint("Horizontal", 35))
sketch1.addConstraint(Sketcher.Constraint("Vertical", 36))
sketch1.addConstraint(Sketcher.Constraint("Horizontal", 37))
sketch1.addConstraint(Sketcher.Constraint("Vertical", 38))
sketch1.addConstraint(Sketcher.Constraint("Horizontal", 39))
sketch1.addConstraint(Sketcher.Constraint("Vertical", 40))
sketch1.addConstraint(Sketcher.Constraint("Horizontal", 41))
sketch1.addConstraint(Sketcher.Constraint("Vertical", 42))
sketch1.addConstraint(Sketcher.Constraint("Horizontal", 43))
sketch1.addConstraint(Sketcher.Constraint("Vertical", 44))
sketch1.addConstraint(Sketcher.Constraint("Horizontal", 45))
sketch1.addConstraint(Sketcher.Constraint("Vertical", 46))
sketch1.addConstraint(Sketcher.Constraint("Horizontal", 47))
sketch1.addConstraint(Sketcher.Constraint("Vertical", 48))
sketch1.addConstraint(Sketcher.Constraint("Horizontal", 49))
sketch1.addConstraint(Sketcher.Constraint("Vertical", 50))
sketch1.addConstraint(Sketcher.Constraint("Horizontal", 51))
sketch1.addConstraint(Sketcher.Constraint("Vertical", 52))
sketch1.addConstraint(Sketcher.Constraint("Horizontal", 53))
sketch1.addConstraint(Sketcher.Constraint("Vertical", 54))
sketch1.addConstraint(Sketcher.Constraint("Horizontal", 55))
sketch1.addConstraint(Sketcher.Constraint("Vertical", 56))
sketch1.addConstraint(Sketcher.Constraint("Horizontal", 57))
sketch1.addConstraint(Sketcher.Constraint("Vertical", 58))
sketch1.addConstraint(Sketcher.Constraint("Horizontal", 59))
sketch1.addConstraint(Sketcher.Constraint("Vertical", 60))
sketch1.addConstraint(Sketcher.Constraint("Horizontal", 61))
sketch1.addConstraint(Sketcher.Constraint("Vertical", 62))
sketch1.addConstraint(Sketcher.Constraint("Horizontal", 63))
sketch1.addConstraint(Sketcher.Constraint("Vertical", 64))
sketch1.addConstraint(Sketcher.Constraint("Horizontal", 65))
sketch1.addConstraint(Sketcher.Constraint("Vertical", 66))
sketch1.addConstraint(Sketcher.Constraint("Horizontal", 67))
sketch1.addConstraint(Sketcher.Constraint("Vertical", 68))
sketch1.addConstraint(Sketcher.Constraint("Horizontal", 69))
sketch1.addConstraint(Sketcher.Constraint("Vertical", 70))
sketch1.addConstraint(Sketcher.Constraint("Horizontal", 71))
sketch1.addConstraint(Sketcher.Constraint("Vertical", 72))
sketch1.addConstraint(Sketcher.Constraint("Horizontal", 73))
sketch1.addConstraint(Sketcher.Constraint("Vertical", 74))
sketch1.addConstraint(Sketcher.Constraint("Horizontal", 75))
sketch1.addConstraint(Sketcher.Constraint("Horizontal", 76))
sketch1.addConstraint(Sketcher.Constraint("Vertical", 78))
sketch1.addConstraint(Sketcher.Constraint("Horizontal", 80))
sketch1.addConstraint(Sketcher.Constraint("Vertical", 82))
sketch1.addConstraint(Sketcher.Constraint("Equal", 77, 79))
sketch1.addConstraint(Sketcher.Constraint("Equal", 79, 81))
sketch1.addConstraint(Sketcher.Constraint("Equal", 81, 83))
sketch1.addConstraint(Sketcher.Constraint("Symmetric", 77, 3, 81, 3, -1, 1))
sketch1.addConstraint(Sketcher.Constraint("Symmetric", 0, 2, 38, 2, -1, 1))
sketch1.addConstraint(Sketcher.Constraint("Symmetric", 2, 2, 40, 2, -1, 1))
sketch1.addConstraint(Sketcher.Constraint("Symmetric", 4, 2, 42, 2, -1, 1))
sketch1.addConstraint(Sketcher.Constraint("Symmetric", 6, 2, 44, 2, -1, 1))
sketch1.addConstraint(Sketcher.Constraint("Symmetric", 8, 2, 46, 2, -1, 1))
sketch1.addConstraint(Sketcher.Constraint("Symmetric", 10, 2, 48, 2, -1, 1))
sketch1.addConstraint(Sketcher.Constraint("Symmetric", 12, 2, 50, 2, -1, 1))
sketch1.addConstraint(Sketcher.Constraint("Symmetric", 14, 2, 52, 2, -1, 1))
sketch1.addConstraint(Sketcher.Constraint("Symmetric", 16, 2, 54, 2, -1, 1))
sketch1.addConstraint(Sketcher.Constraint("Symmetric", 18, 2, 56, 2, -1, 1))
sketch1.addConstraint(Sketcher.Constraint("Symmetric", 20, 2, 58, 2, -1, 1))
sketch1.addConstraint(Sketcher.Constraint("Symmetric", 22, 2, 60, 2, -1, 1))
sketch1.addConstraint(Sketcher.Constraint("Symmetric", 24, 2, 62, 2, -1, 1))
sketch1.addConstraint(Sketcher.Constraint("Symmetric", 26, 2, 64, 2, -1, 1))
sketch1.addConstraint(Sketcher.Constraint("Symmetric", 28, 2, 66, 2, -1, 1))
sketch1.addConstraint(Sketcher.Constraint("Symmetric", 30, 2, 68, 2, -1, 1))
sketch1.addConstraint(Sketcher.Constraint("Symmetric", 32, 2, 70, 2, -1, 1))
sketch1.addConstraint(Sketcher.Constraint("Symmetric", 34, 2, 72, 2, -1, 1))
sketch1.addConstraint(Sketcher.Constraint("Symmetric", 36, 2, 74, 2, -1, 1))
sketch1.addConstraint(Sketcher.Constraint("Symmetric", 13, 2, 16, 2, -2))
sketch1.addConstraint(Sketcher.Constraint("Symmetric", 11, 2, 18, 2, -2))
sketch1.addConstraint(Sketcher.Constraint("Symmetric", 9, 2, 20, 2, -2))
sketch1.addConstraint(Sketcher.Constraint("Symmetric", 7, 2, 22, 2, -2))
sketch1.addConstraint(Sketcher.Constraint("Symmetric", 5, 2, 24, 2, -2))
sketch1.addConstraint(Sketcher.Constraint("Symmetric", 3, 2, 26, 2, -2))
sketch1.addConstraint(Sketcher.Constraint("Symmetric", 1, 2, 28, 2, -2))
sketch1.addConstraint(Sketcher.Constraint("Symmetric", 37, 2, 68, 2, -2))
sketch1.addConstraint(Sketcher.Constraint("Symmetric", 35, 2, 70, 2, -2))
sketch1.addConstraint(Sketcher.Constraint("Horizontal", 1, 2, 4, 2))
sketch1.addConstraint(Sketcher.Constraint("Horizontal", 3, 2, 6, 2))
sketch1.addConstraint(Sketcher.Constraint("Horizontal", 5, 2, 8, 2))
sketch1.addConstraint(Sketcher.Constraint("Horizontal", 7, 2, 10, 2))
sketch1.addConstraint(Sketcher.Constraint("Horizontal", 9, 2, 12, 2))
sketch1.addConstraint(Sketcher.Constraint("Horizontal", 11, 2, 14, 2))
sketch1.addConstraint(Sketcher.Constraint("Vertical", 30, 2, 33, 2))
sketch1.addConstraint(Sketcher.Constraint("Equal", 3, 7))
sketch1.addConstraint(Sketcher.Constraint("Equal", 5, 9))
sketch1.addConstraint(Sketcher.Constraint("Equal", 7, 11))
sketch1.addConstraint(Sketcher.Constraint("Equal", 9, 13))
sketch1.addConstraint(Sketcher.Constraint("Equal", 11, 15))
sketch1.addConstraint(Sketcher.Constraint("Equal", 75, 0))
sketch1.addConstraint(Sketcher.Constraint("Equal", 0, 2))
sketch1.addConstraint(Sketcher.Constraint("Equal", 65, 32))
sketch1.addConstraint(Sketcher.Constraint("Equal", 63, 34))
sketch1.addConstraint(Sketcher.Constraint("Radius", 77, 2.0))
sketch1.addConstraint(Sketcher.Constraint("DistanceX", 1, 1, 1, 2, 8.0))
sketch1.addConstraint(Sketcher.Constraint("DistanceX", 3, 1, 3, 2, 5.0))
sketch1.addConstraint(Sketcher.Constraint("DistanceX", 5, 1, 5, 2, 15.0))
sketch1.addConstraint(Sketcher.Constraint("DistanceX", 76, 2, 76, 1, 117.0))
sketch1.addConstraint(Sketcher.Constraint("DistanceY", 78, 1, 78, 2, 17.0))
sketch1.addConstraint(Sketcher.Constraint("DistanceX", 31, 1, 31, 2, 2.5))
sketch1.setExpression("Constraints[212]", "Params.sketch1_radius")
sketch1.setExpression("Constraints[213]", "Params.sketch1_width")
sketch1.setExpression("Constraints[214]", "Params.sketch1_width2")
sketch1.setExpression("Constraints[215]", "Params.sketch1_width3")
sketch1.setExpression("Constraints[216]", "Params.sketch1_width4")
pad1 = body.newObject("PartDesign::Pad", "Pad")
pad1.Profile = sketch1
pad1.setExpression("Length", "Params.pad1_length")
body2 = doc.addObject("PartDesign::Body", "Body001")

sketch2 = body2.newObject("Sketcher::SketchObject", "Sketch001")
sketch2.AttachmentSupport = (doc.getObject("XY_Plane001"), [""])
sketch2.MapMode = "FlatFace"
sketch2.addGeometry(Part.ArcOfCircle(Part.Circle(Vector(-58.5, 8.5, 0), Vector(0, 0, 1), 2), math.radians(90), math.radians(180)), False)
sketch2.addGeometry(Part.LineSegment(Vector(-60.5, 8.5, 0), Vector(-60.5, -8.5, 0)), False)
sketch2.addGeometry(Part.ArcOfCircle(Part.Circle(Vector(-58.5, -8.5, 0), Vector(0, 0, 1), 2), math.radians(-180), math.radians(-90)), False)
sketch2.addGeometry(Part.LineSegment(Vector(-58.5, -10.5, 0), Vector(58.5, -10.5, 0)), False)
sketch2.addGeometry(Part.ArcOfCircle(Part.Circle(Vector(58.5, -8.5, 0), Vector(0, 0, 1), 2), math.radians(-90), math.radians(0)), False)
sketch2.addGeometry(Part.LineSegment(Vector(60.5, -8.5, 0), Vector(60.5, 8.5, 0)), False)
sketch2.addGeometry(Part.ArcOfCircle(Part.Circle(Vector(58.5, 8.5, 0), Vector(0, 0, 1), 2), math.radians(0), math.radians(90)), False)
sketch2.addGeometry(Part.LineSegment(Vector(58.5, 10.5, 0), Vector(-58.5, 10.5, 0)), False)
sketch2.addConstraint(Sketcher.Constraint("Tangent", 0, 2, 1, 1))
sketch2.addConstraint(Sketcher.Constraint("Tangent", 1, 2, 2, 1))
sketch2.addConstraint(Sketcher.Constraint("Tangent", 2, 2, 3, 1))
sketch2.addConstraint(Sketcher.Constraint("Tangent", 3, 2, 4, 1))
sketch2.addConstraint(Sketcher.Constraint("Tangent", 4, 2, 5, 1))
sketch2.addConstraint(Sketcher.Constraint("Tangent", 5, 2, 6, 1))
sketch2.addConstraint(Sketcher.Constraint("Tangent", 6, 2, 7, 1))
sketch2.addConstraint(Sketcher.Constraint("Tangent", 7, 2, 0, 1))
sketch2.addConstraint(Sketcher.Constraint("Vertical", 1))
sketch2.addConstraint(Sketcher.Constraint("Horizontal", 3))
sketch2.addConstraint(Sketcher.Constraint("Vertical", 5))
sketch2.addConstraint(Sketcher.Constraint("Horizontal", 7))
sketch2.addConstraint(Sketcher.Constraint("Equal", 0, 2))
sketch2.addConstraint(Sketcher.Constraint("Equal", 2, 4))
sketch2.addConstraint(Sketcher.Constraint("Equal", 4, 6))
sketch2.addConstraint(Sketcher.Constraint("Symmetric", 0, 3, 4, 3, -1, 1))
sketch2.addConstraint(Sketcher.Constraint("Radius", 0, 2.0))
sketch2.addConstraint(Sketcher.Constraint("DistanceX", 3, 1, 3, 2, 117.0))
sketch2.addConstraint(Sketcher.Constraint("DistanceY", 1, 2, 1, 1, 17.0))
sketch2.setExpression("Constraints[16]", "Params.sketch2_radius")
sketch2.setExpression("Constraints[17]", "Params.sketch2_width")
sketch2.setExpression("Constraints[18]", "Params.sketch2_height")
pad2 = body2.newObject("PartDesign::Pad", "Pad001")
pad2.Profile = sketch2
pad2.setExpression("Length", "Params.pad2_length")

doc.recompute()
